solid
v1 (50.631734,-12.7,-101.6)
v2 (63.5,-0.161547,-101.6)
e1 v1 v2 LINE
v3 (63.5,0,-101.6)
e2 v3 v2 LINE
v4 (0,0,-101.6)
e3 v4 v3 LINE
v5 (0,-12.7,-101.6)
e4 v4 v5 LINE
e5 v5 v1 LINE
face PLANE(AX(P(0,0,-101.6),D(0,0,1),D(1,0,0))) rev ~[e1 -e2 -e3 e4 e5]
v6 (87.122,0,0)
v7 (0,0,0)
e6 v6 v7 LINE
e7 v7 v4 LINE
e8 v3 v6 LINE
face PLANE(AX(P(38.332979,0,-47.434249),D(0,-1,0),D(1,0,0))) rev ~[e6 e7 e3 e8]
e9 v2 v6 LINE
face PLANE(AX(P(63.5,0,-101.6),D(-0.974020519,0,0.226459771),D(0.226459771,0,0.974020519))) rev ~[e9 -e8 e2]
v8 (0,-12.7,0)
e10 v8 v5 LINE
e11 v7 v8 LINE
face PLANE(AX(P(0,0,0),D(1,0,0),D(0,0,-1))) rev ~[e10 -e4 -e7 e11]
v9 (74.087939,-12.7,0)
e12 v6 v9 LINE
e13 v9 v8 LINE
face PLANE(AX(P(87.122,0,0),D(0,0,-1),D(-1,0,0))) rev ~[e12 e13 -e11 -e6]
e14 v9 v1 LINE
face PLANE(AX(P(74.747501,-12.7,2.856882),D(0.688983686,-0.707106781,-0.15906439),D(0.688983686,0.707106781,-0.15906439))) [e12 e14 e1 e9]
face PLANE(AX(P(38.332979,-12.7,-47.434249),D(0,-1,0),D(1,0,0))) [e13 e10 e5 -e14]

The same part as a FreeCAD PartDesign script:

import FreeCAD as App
import Part
import Sketcher
from FreeCAD import Vector
Q = App.Units.Quantity

doc = App.newDocument("Part")
params = doc.addObject("Spreadsheet::Sheet", "Params")
for row, (alias, value) in enumerate([
    ("sketch1_height", "4 in"),
    ("sketch1_width", "2.5 in"),
    ("sketch1_width2", "3.43 in"),
    ("pad1_length", "0.5 in"),
    ("sketch2_width", "0.5 in"),
], start=1):
    params.set(f"A{row}", alias)
    params.set(f"B{row}", "=" + value)
    params.setAlias(f"B{row}", alias)

body = doc.addObject("PartDesign::Body", "Body")

sketch1 = doc.addObject("Sketcher::SketchObject", "Sketch")
body.addObject(sketch1)
sketch1.AttachmentSupport = (doc.XZ_Plane, [""])
sketch1.MapMode = "FlatFace"
sketch1.addGeometry([
    Part.LineSegment(Vector(87.122, 0, 0), Vector(0, 0, 0)),
    Part.LineSegment(Vector(0, 0, 0), Vector(0, -101.6, 0)),
    Part.LineSegment(Vector(0, -101.6, 0), Vector(63.5, -101.6, 0)),
    Part.LineSegment(Vector(63.5, -101.6, 0), Vector(87.122, 0, 0)),
], False)
sketch1.addConstraint([
    Sketcher.Constraint("Coincident", 0, 2, 1, 1),
    Sketcher.Constraint("Coincident", 1, 2, 2, 1),
    Sketcher.Constraint("Coincident", 2, 2, 3, 1),
    Sketcher.Constraint("Coincident", 3, 2, 0, 1),
    Sketcher.Constraint("Horizontal", 0),
    Sketcher.Constraint("Vertical", 1),
    Sketcher.Constraint("Horizontal", 2),
    Sketcher.Constraint("Coincident", 0, 2, -1, 1),
    Sketcher.Constraint("DistanceY", 1, 2, 1, 1, Q("4 in")),
    Sketcher.Constraint("DistanceX", 2, 1, 2, 2, Q("2.5 in")),
    Sketcher.Constraint("DistanceX", 0, 2, 0, 1, Q("3.43 in")),
])
sketch1.setExpression("Constraints[8]", "Params.sketch1_height")
sketch1.setExpression("Constraints[9]", "Params.sketch1_width")
sketch1.setExpression("Constraints[10]", "Params.sketch1_width2")
pad1 = doc.addObject("PartDesign::Pad", "Pad")
body.addObject(pad1)
pad1.Profile = sketch1
pad1.setExpression("Length", "Params.pad1_length")

sketch2 = doc.addObject("Sketcher::SketchObject", "Sketch001")
body.addObject(sketch2)
sketch2.Placement = App.Placement(Vector(4.408633, 0, 19.095886), App.Rotation(Vector(0.974370073, 0, -0.224951017), Vector(0, -0.999999999, 0), Vector(-0.224951017, 0, -0.974370073), "ZXY"))
sketch2.addGeometry([
    Part.LineSegment(Vector(84.889069, 12.7, 0), Vector(72.189069, 12.7, 0)),
    Part.LineSegment(Vector(72.189069, 12.7, 0), Vector(84.889069, 0, 0)),
    Part.LineSegment(Vector(84.889069, 0, 0), Vector(84.889069, 12.7, 0)),
], False)
sketch2.addConstraint([
    Sketcher.Constraint("Coincident", 0, 2, 1, 1),
    Sketcher.Constraint("Coincident", 1, 2, 2, 1),
    Sketcher.Constraint("Coincident", 2, 2, 0, 1),
    Sketcher.Constraint("Horizontal", 0),
    Sketcher.Constraint("Vertical", 2),
    Sketcher.Constraint("PointOnObject", 1, 2, -1),
    Sketcher.Constraint("Equal", 0, 2),
    Sketcher.Constraint("DistanceX", 0, 2, 0, 1, Q("0.5 in")),
    Sketcher.Constraint("DistanceX", -1, 1, 0, 2, 72.189069),
])
sketch2.setExpression("Constraints[7]", "Params.sketch2_width")
pocket1 = doc.addObject("PartDesign::Pocket", "Pocket")
body.addObject(pocket1)
pocket1.Profile = sketch2
pocket1.Type = "ThroughAll"
pocket1.Reversed = True

doc.recompute()
